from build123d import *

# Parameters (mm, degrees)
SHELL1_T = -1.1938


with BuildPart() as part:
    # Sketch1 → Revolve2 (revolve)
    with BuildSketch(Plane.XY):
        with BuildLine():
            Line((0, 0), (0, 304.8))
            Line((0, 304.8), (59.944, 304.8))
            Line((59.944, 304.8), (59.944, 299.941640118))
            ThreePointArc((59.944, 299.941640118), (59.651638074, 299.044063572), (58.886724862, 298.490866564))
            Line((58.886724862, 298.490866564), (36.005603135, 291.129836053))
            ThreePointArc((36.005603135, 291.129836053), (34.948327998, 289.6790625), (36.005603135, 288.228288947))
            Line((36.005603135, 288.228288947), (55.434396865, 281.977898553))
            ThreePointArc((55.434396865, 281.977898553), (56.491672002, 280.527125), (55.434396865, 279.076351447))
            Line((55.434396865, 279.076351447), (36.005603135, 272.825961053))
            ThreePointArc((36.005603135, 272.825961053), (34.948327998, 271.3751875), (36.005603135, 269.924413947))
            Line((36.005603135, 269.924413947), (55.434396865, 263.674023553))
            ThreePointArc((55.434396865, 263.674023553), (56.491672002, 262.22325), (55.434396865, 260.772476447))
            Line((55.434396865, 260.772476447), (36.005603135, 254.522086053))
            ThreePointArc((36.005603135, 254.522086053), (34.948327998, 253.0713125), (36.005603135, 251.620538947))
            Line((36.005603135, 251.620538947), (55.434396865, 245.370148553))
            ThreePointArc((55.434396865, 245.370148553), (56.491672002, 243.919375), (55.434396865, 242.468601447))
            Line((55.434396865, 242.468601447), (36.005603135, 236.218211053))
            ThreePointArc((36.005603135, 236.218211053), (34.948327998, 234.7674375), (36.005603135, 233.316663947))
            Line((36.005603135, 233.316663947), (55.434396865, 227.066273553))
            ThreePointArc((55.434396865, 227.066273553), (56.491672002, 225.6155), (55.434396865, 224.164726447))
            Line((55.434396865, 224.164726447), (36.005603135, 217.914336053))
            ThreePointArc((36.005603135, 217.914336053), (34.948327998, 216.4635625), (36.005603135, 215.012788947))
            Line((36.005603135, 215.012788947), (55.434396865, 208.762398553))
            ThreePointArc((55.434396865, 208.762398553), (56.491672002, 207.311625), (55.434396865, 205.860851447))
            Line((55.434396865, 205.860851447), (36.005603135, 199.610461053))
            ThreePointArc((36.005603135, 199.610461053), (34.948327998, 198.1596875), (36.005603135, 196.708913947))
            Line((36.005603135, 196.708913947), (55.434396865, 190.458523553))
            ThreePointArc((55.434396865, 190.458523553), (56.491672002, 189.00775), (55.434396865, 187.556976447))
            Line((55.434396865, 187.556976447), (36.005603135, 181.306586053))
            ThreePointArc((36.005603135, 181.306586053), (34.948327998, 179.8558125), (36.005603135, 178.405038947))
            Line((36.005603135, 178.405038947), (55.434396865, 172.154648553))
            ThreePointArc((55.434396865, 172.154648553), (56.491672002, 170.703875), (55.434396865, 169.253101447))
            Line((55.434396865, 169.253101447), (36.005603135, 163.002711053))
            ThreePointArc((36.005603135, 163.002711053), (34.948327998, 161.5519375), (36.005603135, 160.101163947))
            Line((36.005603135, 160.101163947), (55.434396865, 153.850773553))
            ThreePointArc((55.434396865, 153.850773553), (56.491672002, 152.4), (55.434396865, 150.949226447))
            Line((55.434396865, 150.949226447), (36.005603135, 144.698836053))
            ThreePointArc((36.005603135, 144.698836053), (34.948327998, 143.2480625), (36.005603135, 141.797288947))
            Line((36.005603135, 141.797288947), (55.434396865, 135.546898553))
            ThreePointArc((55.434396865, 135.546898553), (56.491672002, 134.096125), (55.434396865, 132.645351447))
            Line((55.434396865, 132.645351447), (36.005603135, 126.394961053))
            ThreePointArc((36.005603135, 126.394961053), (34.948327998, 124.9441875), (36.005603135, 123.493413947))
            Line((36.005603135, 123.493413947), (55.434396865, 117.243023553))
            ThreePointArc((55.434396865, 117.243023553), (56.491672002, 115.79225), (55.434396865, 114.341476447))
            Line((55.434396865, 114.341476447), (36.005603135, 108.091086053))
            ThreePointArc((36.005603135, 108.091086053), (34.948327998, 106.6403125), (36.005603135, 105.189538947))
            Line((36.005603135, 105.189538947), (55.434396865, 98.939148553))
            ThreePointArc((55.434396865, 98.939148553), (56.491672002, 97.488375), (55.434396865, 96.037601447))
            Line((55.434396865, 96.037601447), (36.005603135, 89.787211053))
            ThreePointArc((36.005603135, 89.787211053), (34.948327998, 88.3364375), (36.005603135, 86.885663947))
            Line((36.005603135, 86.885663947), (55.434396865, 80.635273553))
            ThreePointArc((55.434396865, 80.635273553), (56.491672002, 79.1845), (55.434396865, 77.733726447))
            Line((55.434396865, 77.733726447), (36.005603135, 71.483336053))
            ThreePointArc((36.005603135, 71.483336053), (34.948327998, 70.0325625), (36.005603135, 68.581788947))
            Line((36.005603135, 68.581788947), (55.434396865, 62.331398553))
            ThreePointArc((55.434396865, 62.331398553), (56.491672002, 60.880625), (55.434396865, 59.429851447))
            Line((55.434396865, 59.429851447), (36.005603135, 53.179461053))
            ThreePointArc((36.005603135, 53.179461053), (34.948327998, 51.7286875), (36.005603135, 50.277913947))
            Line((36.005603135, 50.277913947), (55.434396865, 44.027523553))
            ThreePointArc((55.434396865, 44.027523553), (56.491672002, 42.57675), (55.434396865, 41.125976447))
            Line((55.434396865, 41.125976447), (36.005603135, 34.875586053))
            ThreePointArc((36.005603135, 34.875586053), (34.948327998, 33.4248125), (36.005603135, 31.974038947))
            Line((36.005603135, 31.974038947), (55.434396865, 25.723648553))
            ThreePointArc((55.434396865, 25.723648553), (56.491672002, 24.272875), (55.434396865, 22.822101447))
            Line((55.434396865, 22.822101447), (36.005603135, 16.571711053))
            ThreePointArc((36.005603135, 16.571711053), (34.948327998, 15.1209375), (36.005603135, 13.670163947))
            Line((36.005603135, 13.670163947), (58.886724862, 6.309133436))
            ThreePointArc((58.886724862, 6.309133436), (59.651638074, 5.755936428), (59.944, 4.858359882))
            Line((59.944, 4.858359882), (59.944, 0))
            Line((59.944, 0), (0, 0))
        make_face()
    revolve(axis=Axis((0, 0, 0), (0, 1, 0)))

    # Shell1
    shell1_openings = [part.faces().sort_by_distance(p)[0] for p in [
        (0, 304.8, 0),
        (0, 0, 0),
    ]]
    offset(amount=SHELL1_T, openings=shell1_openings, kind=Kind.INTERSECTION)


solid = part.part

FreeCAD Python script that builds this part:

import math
import FreeCAD as App
import Part
import Sketcher

V = App.Vector
Q = App.Units.Quantity


def faces_at(feature, points):
    """Names of the faces that lie closest to the given points."""
    faces = feature.Shape.Faces
    near = lambda p: min(range(len(faces)), key=lambda i: faces[i].distToShape(Part.Vertex(*p))[0])
    return sorted({f"Face{near(p) + 1}" for p in points})

doc = App.newDocument("Part")
body = doc.addObject("PartDesign::Body", "Body")

# Sketch on XY plane
sketch1 = body.newObject("Sketcher::SketchObject", "Sketch")
sketch1.AttachmentSupport = (doc.getObject("XY_Plane"), [""])
sketch1.MapMode = "FlatFace"
sketch1.addGeometry([
    Part.LineSegment(V(0, 304.8, 0), V(0, 0, 0)),  # 0
    Part.LineSegment(V(0, 0, 0), V(59.9, 0, 0)),  # 1
    Part.LineSegment(V(59.9, 0, 0), V(59.9, 4.9, 0)),  # 2
    Part.ArcOfCircle(Part.Circle(V(58.4, 4.9, 0), V(0, 0, 1), 1.5), math.radians(0), math.radians(72)),  # 3
    Part.LineSegment(V(58.9, 6.3, 0), V(36, 13.7, 0)),  # 4
    Part.ArcOfCircle(Part.Circle(V(36.5, 15.1, 0), V(0, 0, 1), 1.5), math.radians(108), math.radians(252)),  # 5
    Part.LineSegment(V(36, 16.6, 0), V(55.4, 22.8, 0)),  # 6
    Part.ArcOfCircle(Part.Circle(V(55, 24.3, 0), V(0, 0, 1), 1.5), math.radians(-72), math.radians(72)),  # 7
    Part.LineSegment(V(55.4, 25.7, 0), V(36, 32, 0)),  # 8
    Part.ArcOfCircle(Part.Circle(V(36.5, 33.4, 0), V(0, 0, 1), 1.5), math.radians(108), math.radians(252)),  # 9
    Part.LineSegment(V(36, 34.9, 0), V(55.4, 41.1, 0)),  # 10
    Part.ArcOfCircle(Part.Circle(V(55, 42.6, 0), V(0, 0, 1), 1.5), math.radians(-72), math.radians(72)),  # 11
    Part.LineSegment(V(55.4, 44, 0), V(36, 50.3, 0)),  # 12
    Part.ArcOfCircle(Part.Circle(V(36.5, 51.7, 0), V(0, 0, 1), 1.5), math.radians(108), math.radians(252)),  # 13
    Part.LineSegment(V(36, 53.2, 0), V(55.4, 59.4, 0)),  # 14
    Part.ArcOfCircle(Part.Circle(V(55, 60.9, 0), V(0, 0, 1), 1.5), math.radians(-72), math.radians(72)),  # 15
    Part.LineSegment(V(55.4, 62.3, 0), V(36, 68.6, 0)),  # 16
    Part.ArcOfCircle(Part.Circle(V(36.5, 70, 0), V(0, 0, 1), 1.5), math.radians(108), math.radians(252)),  # 17
    Part.LineSegment(V(36, 71.5, 0), V(55.4, 77.7, 0)),  # 18
    Part.ArcOfCircle(Part.Circle(V(55, 79.2, 0), V(0, 0, 1), 1.5), math.radians(-72), math.radians(72)),  # 19
    Part.LineSegment(V(55.4, 80.6, 0), V(36, 86.9, 0)),  # 20
    Part.ArcOfCircle(Part.Circle(V(36.5, 88.3, 0), V(0, 0, 1), 1.5), math.radians(108), math.radians(252)),  # 21
    Part.LineSegment(V(36, 89.8, 0), V(55.4, 96, 0)),  # 22
    Part.ArcOfCircle(Part.Circle(V(55, 97.5, 0), V(0, 0, 1), 1.5), math.radians(-72), math.radians(72)),  # 23
    Part.LineSegment(V(55.4, 98.9, 0), V(36, 105.2, 0)),  # 24
    Part.ArcOfCircle(Part.Circle(V(36.5, 106.6, 0), V(0, 0, 1), 1.5), math.radians(108), math.radians(252)),  # 25
    Part.LineSegment(V(36, 108.1, 0), V(55.4, 114.3, 0)),  # 26
    Part.ArcOfCircle(Part.Circle(V(55, 115.8, 0), V(0, 0, 1), 1.5), math.radians(-72), math.radians(72)),  # 27
    Part.LineSegment(V(55.4, 117.2, 0), V(36, 123.5, 0)),  # 28
    Part.ArcOfCircle(Part.Circle(V(36.5, 124.9, 0), V(0, 0, 1), 1.5), math.radians(108), math.radians(252)),  # 29
    Part.LineSegment(V(36, 126.4, 0), V(55.4, 132.6, 0)),  # 30
    Part.ArcOfCircle(Part.Circle(V(55, 134.1, 0), V(0, 0, 1), 1.5), math.radians(-72), math.radians(72)),  # 31
    Part.LineSegment(V(55.4, 135.5, 0), V(36, 141.8, 0)),  # 32
    Part.ArcOfCircle(Part.Circle(V(36.5, 143.2, 0), V(0, 0, 1), 1.5), math.radians(108), math.radians(252)),  # 33
    Part.LineSegment(V(36, 144.7, 0), V(55.4, 150.9, 0)),  # 34
    Part.ArcOfCircle(Part.Circle(V(55, 152.4, 0), V(0, 0, 1), 1.5), math.radians(-72), math.radians(72)),  # 35
    Part.LineSegment(V(55.4, 153.9, 0), V(36, 160.1, 0)),  # 36
    Part.ArcOfCircle(Part.Circle(V(36.5, 161.6, 0), V(0, 0, 1), 1.5), math.radians(108), math.radians(252)),  # 37
    Part.LineSegment(V(36, 163, 0), V(55.4, 169.3, 0)),  # 38
    Part.ArcOfCircle(Part.Circle(V(55, 170.7, 0), V(0, 0, 1), 1.5), math.radians(-72), math.radians(72)),  # 39
    Part.LineSegment(V(55.4, 172.2, 0), V(36, 178.4, 0)),  # 40
    Part.ArcOfCircle(Part.Circle(V(36.5, 179.9, 0), V(0, 0, 1), 1.5), math.radians(108), math.radians(252)),  # 41
    Part.LineSegment(V(36, 181.3, 0), V(55.4, 187.6, 0)),  # 42
    Part.ArcOfCircle(Part.Circle(V(55, 189, 0), V(0, 0, 1), 1.5), math.radians(-72), math.radians(72)),  # 43
    Part.LineSegment(V(55.4, 190.5, 0), V(36, 196.7, 0)),  # 44
    Part.ArcOfCircle(Part.Circle(V(36.5, 198.2, 0), V(0, 0, 1), 1.5), math.radians(108), math.radians(252)),  # 45
    Part.LineSegment(V(36, 199.6, 0), V(55.4, 205.9, 0)),  # 46
    Part.ArcOfCircle(Part.Circle(V(55, 207.3, 0), V(0, 0, 1), 1.5), math.radians(-72), math.radians(72)),  # 47
    Part.LineSegment(V(55.4, 208.8, 0), V(36, 215, 0)),  # 48
    Part.ArcOfCircle(Part.Circle(V(36.5, 216.5, 0), V(0, 0, 1), 1.5), math.radians(108), math.radians(252)),  # 49
    Part.LineSegment(V(36, 217.9, 0), V(55.4, 224.2, 0)),  # 50
    Part.ArcOfCircle(Part.Circle(V(55, 225.6, 0), V(0, 0, 1), 1.5), math.radians(-72), math.radians(72)),  # 51
    Part.LineSegment(V(55.4, 227.1, 0), V(36, 233.3, 0)),  # 52
    Part.ArcOfCircle(Part.Circle(V(36.5, 234.8, 0), V(0, 0, 1), 1.5), math.radians(108), math.radians(252)),  # 53
    Part.LineSegment(V(36, 236.2, 0), V(55.4, 242.5, 0)),  # 54
    Part.ArcOfCircle(Part.Circle(V(55, 243.9, 0), V(0, 0, 1), 1.5), math.radians(-72), math.radians(72)),  # 55
    Part.LineSegment(V(55.4, 245.4, 0), V(36, 251.6, 0)),  # 56
    Part.ArcOfCircle(Part.Circle(V(36.5, 253.1, 0), V(0, 0, 1), 1.5), math.radians(108), math.radians(252)),  # 57
    Part.LineSegment(V(36, 254.5, 0), V(55.4, 260.8, 0)),  # 58
    Part.ArcOfCircle(Part.Circle(V(55, 262.2, 0), V(0, 0, 1), 1.5), math.radians(-72), math.radians(72)),  # 59
    Part.LineSegment(V(55.4, 263.7, 0), V(36, 269.9, 0)),  # 60
    Part.ArcOfCircle(Part.Circle(V(36.5, 271.4, 0), V(0, 0, 1), 1.5), math.radians(108), math.radians(252)),  # 61
    Part.LineSegment(V(36, 272.8, 0), V(55.4, 279.1, 0)),  # 62
    Part.ArcOfCircle(Part.Circle(V(55, 280.5, 0), V(0, 0, 1), 1.5), math.radians(-72), math.radians(72)),  # 63
    Part.LineSegment(V(55.4, 282, 0), V(36, 288.2, 0)),  # 64
    Part.ArcOfCircle(Part.Circle(V(36.5, 289.7, 0), V(0, 0, 1), 1.5), math.radians(108), math.radians(252)),  # 65
    Part.LineSegment(V(36, 291.1, 0), V(58.9, 298.5, 0)),  # 66
    Part.ArcOfCircle(Part.Circle(V(58.4, 299.9, 0), V(0, 0, 1), 1.5), math.radians(-72), math.radians(0)),  # 67
    Part.LineSegment(V(59.9, 299.9, 0), V(59.9, 304.8, 0)),  # 68
    Part.LineSegment(V(59.9, 304.8, 0), V(0, 304.8, 0)),  # 69
], False)
sketch1.addConstraint([
    Sketcher.Constraint("Coincident", 0, 2, 1, 1),
    Sketcher.Constraint("Coincident", 1, 2, 2, 1),
    Sketcher.Constraint("Tangent", 2, 2, 3, 1),
    Sketcher.Constraint("Tangent", 3, 2, 4, 1),
    Sketcher.Constraint("Tangent", 4, 2, 5, 2),
    Sketcher.Constraint("Tangent", 5, 1, 6, 1),
    Sketcher.Constraint("Tangent", 6, 2, 7, 1),
    Sketcher.Constraint("Tangent", 7, 2, 8, 1),
    Sketcher.Constraint("Tangent", 8, 2, 9, 2),
    Sketcher.Constraint("Tangent", 9, 1, 10, 1),
    Sketcher.Constraint("Tangent", 10, 2, 11, 1),
    Sketcher.Constraint("Tangent", 11, 2, 12, 1),
    Sketcher.Constraint("Tangent", 12, 2, 13, 2),
    Sketcher.Constraint("Tangent", 13, 1, 14, 1),
    Sketcher.Constraint("Tangent", 14, 2, 15, 1),
    Sketcher.Constraint("Tangent", 15, 2, 16, 1),
    Sketcher.Constraint("Tangent", 16, 2, 17, 2),
    Sketcher.Constraint("Tangent", 17, 1, 18, 1),
    Sketcher.Constraint("Tangent", 18, 2, 19, 1),
    Sketcher.Constraint("Tangent", 19, 2, 20, 1),
    Sketcher.Constraint("Tangent", 20, 2, 21, 2),
    Sketcher.Constraint("Tangent", 21, 1, 22, 1),
    Sketcher.Constraint("Tangent", 22, 2, 23, 1),
    Sketcher.Constraint("Tangent", 23, 2, 24, 1),
    Sketcher.Constraint("Tangent", 24, 2, 25, 2),
    Sketcher.Constraint("Tangent", 25, 1, 26, 1),
    Sketcher.Constraint("Tangent", 26, 2, 27, 1),
    Sketcher.Constraint("Tangent", 27, 2, 28, 1),
    Sketcher.Constraint("Tangent", 28, 2, 29, 2),
    Sketcher.Constraint("Tangent", 29, 1, 30, 1),
    Sketcher.Constraint("Tangent", 30, 2, 31, 1),
    Sketcher.Constraint("Tangent", 31, 2, 32, 1),
    Sketcher.Constraint("Tangent", 32, 2, 33, 2),
    Sketcher.Constraint("Tangent", 33, 1, 34, 1),
    Sketcher.Constraint("Tangent", 34, 2, 35, 1),
    Sketcher.Constraint("Tangent", 35, 2, 36, 1),
    Sketcher.Constraint("Tangent", 36, 2, 37, 2),
    Sketcher.Constraint("Tangent", 37, 1, 38, 1),
    Sketcher.Constraint("Tangent", 38, 2, 39, 1),
    Sketcher.Constraint("Tangent", 39, 2, 40, 1),
    Sketcher.Constraint("Tangent", 40, 2, 41, 2),
    Sketcher.Constraint("Tangent", 41, 1, 42, 1),
    Sketcher.Constraint("Tangent", 42, 2, 43, 1),
    Sketcher.Constraint("Tangent", 43, 2, 44, 1),
    Sketcher.Constraint("Tangent", 44, 2, 45, 2),
    Sketcher.Constraint("Tangent", 45, 1, 46, 1),
    Sketcher.Constraint("Tangent", 46, 2, 47, 1),
    Sketcher.Constraint("Tangent", 47, 2, 48, 1),
    Sketcher.Constraint("Tangent", 48, 2, 49, 2),
    Sketcher.Constraint("Tangent", 49, 1, 50, 1),
    Sketcher.Constraint("Tangent", 50, 2, 51, 1),
    Sketcher.Constraint("Tangent", 51, 2, 52, 1),
    Sketcher.Constraint("Tangent", 52, 2, 53, 2),
    Sketcher.Constraint("Tangent", 53, 1, 54, 1),
    Sketcher.Constraint("Tangent", 54, 2, 55, 1),
    Sketcher.Constraint("Tangent", 55, 2, 56, 1),
    Sketcher.Constraint("Tangent", 56, 2, 57, 2),
    Sketcher.Constraint("Tangent", 57, 1, 58, 1),
    Sketcher.Constraint("Tangent", 58, 2, 59, 1),
    Sketcher.Constraint("Tangent", 59, 2, 60, 1),
    Sketcher.Constraint("Tangent", 60, 2, 61, 2),
    Sketcher.Constraint("Tangent", 61, 1, 62, 1),
    Sketcher.Constraint("Tangent", 62, 2, 63, 1),
    Sketcher.Constraint("Tangent", 63, 2, 64, 1),
    Sketcher.Constraint("Tangent", 64, 2, 65, 2),
    Sketcher.Constraint("Tangent", 65, 1, 66, 1),
    Sketcher.Constraint("Tangent", 66, 2, 67, 1),
    Sketcher.Constraint("Tangent", 67, 2, 68, 1),
    Sketcher.Constraint("Coincident", 68, 2, 69, 1),
    Sketcher.Constraint("Coincident", 69, 2, 0, 1),
    Sketcher.Constraint("Vertical", 0),
    Sketcher.Constraint("Horizontal", 1),
    Sketcher.Constraint("Vertical", 2),
    Sketcher.Constraint("Vertical", 68),
    Sketcher.Constraint("Horizontal", 69),
    Sketcher.Constraint("Coincident", 0, 2, -1, 1),
    Sketcher.Constraint("Equal", 3, 5),
    Sketcher.Constraint("Equal", 5, 7),
    Sketcher.Constraint("Equal", 7, 9),
    Sketcher.Constraint("Equal", 9, 11),
    Sketcher.Constraint("Equal", 11, 13),
    Sketcher.Constraint("Equal", 13, 15),
    Sketcher.Constraint("Equal", 15, 17),
    Sketcher.Constraint("Equal", 17, 19),
    Sketcher.Constraint("Equal", 19, 21),
    Sketcher.Constraint("Equal", 21, 23),
    Sketcher.Constraint("Equal", 23, 25),
    Sketcher.Constraint("Equal", 25, 27),
    Sketcher.Constraint("Equal", 27, 29),
    Sketcher.Constraint("Equal", 29, 31),
    Sketcher.Constraint("Equal", 31, 33),
    Sketcher.Constraint("Equal", 33, 35),
    Sketcher.Constraint("Equal", 35, 37),
    Sketcher.Constraint("Equal", 37, 39),
    Sketcher.Constraint("Equal", 39, 41),
    Sketcher.Constraint("Equal", 41, 43),
    Sketcher.Constraint("Equal", 43, 45),
    Sketcher.Constraint("Equal", 45, 47),
    Sketcher.Constraint("Equal", 47, 49),
    Sketcher.Constraint("Equal", 49, 51),
    Sketcher.Constraint("Equal", 51, 53),
    Sketcher.Constraint("Equal", 53, 55),
    Sketcher.Constraint("Equal", 55, 57),
    Sketcher.Constraint("Equal", 57, 59),
    Sketcher.Constraint("Equal", 59, 61),
    Sketcher.Constraint("Equal", 61, 63),
    Sketcher.Constraint("Equal", 63, 65),
    Sketcher.Constraint("Equal", 65, 67),
    Sketcher.Constraint("Parallel", 4, 8),
    Sketcher.Constraint("Parallel", 6, 10),
    Sketcher.Constraint("Parallel", 8, 12),
    Sketcher.Constraint("Parallel", 10, 14),
    Sketcher.Constraint("Parallel", 12, 16),
    Sketcher.Constraint("Parallel", 14, 18),
    Sketcher.Constraint("Parallel", 16, 20),
    Sketcher.Constraint("Parallel", 18, 22),
    Sketcher.Constraint("Parallel", 20, 24),
    Sketcher.Constraint("Parallel", 22, 26),
    Sketcher.Constraint("Parallel", 24, 28),
    Sketcher.Constraint("Parallel", 26, 30),
    Sketcher.Constraint("Parallel", 28, 32),
    Sketcher.Constraint("Parallel", 30, 34),
    Sketcher.Constraint("Parallel", 32, 36),
    Sketcher.Constraint("Parallel", 34, 38),
    Sketcher.Constraint("Parallel", 36, 40),
    Sketcher.Constraint("Parallel", 38, 42),
    Sketcher.Constraint("Parallel", 40, 44),
    Sketcher.Constraint("Parallel", 42, 46),
    Sketcher.Constraint("Parallel", 44, 48),
    Sketcher.Constraint("Parallel", 46, 50),
    Sketcher.Constraint("Parallel", 48, 52),
    Sketcher.Constraint("Parallel", 50, 54),
    Sketcher.Constraint("Parallel", 52, 56),
    Sketcher.Constraint("Parallel", 54, 58),
    Sketcher.Constraint("Parallel", 56, 60),
    Sketcher.Constraint("Parallel", 58, 62),
    Sketcher.Constraint("Parallel", 60, 64),
    Sketcher.Constraint("Parallel", 62, 66),
    Sketcher.Constraint("Vertical", 5, 3, 9, 3),
    Sketcher.Constraint("Vertical", 7, 3, 11, 3),
    Sketcher.Constraint("Vertical", 9, 3, 13, 3),
    Sketcher.Constraint("Vertical", 11, 3, 15, 3),
    Sketcher.Constraint("Vertical", 13, 3, 17, 3),
    Sketcher.Constraint("Vertical", 15, 3, 19, 3),
    Sketcher.Constraint("Vertical", 17, 3, 21, 3),
    Sketcher.Constraint("Vertical", 19, 3, 23, 3),
    Sketcher.Constraint("Vertical", 21, 3, 25, 3),
    Sketcher.Constraint("Vertical", 23, 3, 27, 3),
    Sketcher.Constraint("Vertical", 25, 3, 29, 3),
    Sketcher.Constraint("Vertical", 27, 3, 31, 3),
    Sketcher.Constraint("Vertical", 29, 3, 33, 3),
    Sketcher.Constraint("Vertical", 31, 3, 35, 3),
    Sketcher.Constraint("Vertical", 33, 3, 37, 3),
    Sketcher.Constraint("Vertical", 35, 3, 39, 3),
    Sketcher.Constraint("Vertical", 37, 3, 41, 3),
    Sketcher.Constraint("Vertical", 39, 3, 43, 3),
    Sketcher.Constraint("Vertical", 41, 3, 45, 3),
    Sketcher.Constraint("Vertical", 43, 3, 47, 3),
    Sketcher.Constraint("Vertical", 45, 3, 49, 3),
    Sketcher.Constraint("Vertical", 47, 3, 51, 3),
    Sketcher.Constraint("Vertical", 49, 3, 53, 3),
    Sketcher.Constraint("Vertical", 51, 3, 55, 3),
    Sketcher.Constraint("Vertical", 53, 3, 57, 3),
    Sketcher.Constraint("Vertical", 55, 3, 59, 3),
    Sketcher.Constraint("Vertical", 57, 3, 61, 3),
    Sketcher.Constraint("Vertical", 59, 3, 63, 3),
    Sketcher.Constraint("Vertical", 61, 3, 65, 3),
    Sketcher.Constraint("Vertical", 3, 3, 67, 3),
    Sketcher.Constraint("Vertical", 4, 2, 5, 1),
    Sketcher.Constraint("Equal", 2, 68),
    Sketcher.Constraint("DistanceY", 0, 2, 0, 1, Q("12 in")),
    Sketcher.Constraint("Radius", 3, Q("0.06 in")),
    Sketcher.Constraint("DistanceX", 1, 1, 1, 2, Q("2.36 in")),
    Sketcher.Constraint("DistanceY", -1, 1, 19, 3, Q("3.1175 in")),
    Sketcher.Constraint("DistanceY", 2, 1, 2, 2, Q("4.85836 mm")),
    Sketcher.Constraint("Distance", 4, Q("24.036025 mm")),
])
revolution = body.newObject("PartDesign::Revolution", "Revolution")
revolution.Profile = sketch1
revolution.ReferenceAxis = (sketch1, ["V_Axis"])
revolution.Angle = 360
doc.recompute()

thickness = body.newObject("PartDesign::Thickness", "Thickness")
thickness.Base = (revolution, faces_at(revolution, [(0, 304.8, 0), (0, 0, 0)]))
thickness.Value = Q("0.047 in")
thickness.Reversed = True
thickness.Join = "Intersection"

doc.recompute()
